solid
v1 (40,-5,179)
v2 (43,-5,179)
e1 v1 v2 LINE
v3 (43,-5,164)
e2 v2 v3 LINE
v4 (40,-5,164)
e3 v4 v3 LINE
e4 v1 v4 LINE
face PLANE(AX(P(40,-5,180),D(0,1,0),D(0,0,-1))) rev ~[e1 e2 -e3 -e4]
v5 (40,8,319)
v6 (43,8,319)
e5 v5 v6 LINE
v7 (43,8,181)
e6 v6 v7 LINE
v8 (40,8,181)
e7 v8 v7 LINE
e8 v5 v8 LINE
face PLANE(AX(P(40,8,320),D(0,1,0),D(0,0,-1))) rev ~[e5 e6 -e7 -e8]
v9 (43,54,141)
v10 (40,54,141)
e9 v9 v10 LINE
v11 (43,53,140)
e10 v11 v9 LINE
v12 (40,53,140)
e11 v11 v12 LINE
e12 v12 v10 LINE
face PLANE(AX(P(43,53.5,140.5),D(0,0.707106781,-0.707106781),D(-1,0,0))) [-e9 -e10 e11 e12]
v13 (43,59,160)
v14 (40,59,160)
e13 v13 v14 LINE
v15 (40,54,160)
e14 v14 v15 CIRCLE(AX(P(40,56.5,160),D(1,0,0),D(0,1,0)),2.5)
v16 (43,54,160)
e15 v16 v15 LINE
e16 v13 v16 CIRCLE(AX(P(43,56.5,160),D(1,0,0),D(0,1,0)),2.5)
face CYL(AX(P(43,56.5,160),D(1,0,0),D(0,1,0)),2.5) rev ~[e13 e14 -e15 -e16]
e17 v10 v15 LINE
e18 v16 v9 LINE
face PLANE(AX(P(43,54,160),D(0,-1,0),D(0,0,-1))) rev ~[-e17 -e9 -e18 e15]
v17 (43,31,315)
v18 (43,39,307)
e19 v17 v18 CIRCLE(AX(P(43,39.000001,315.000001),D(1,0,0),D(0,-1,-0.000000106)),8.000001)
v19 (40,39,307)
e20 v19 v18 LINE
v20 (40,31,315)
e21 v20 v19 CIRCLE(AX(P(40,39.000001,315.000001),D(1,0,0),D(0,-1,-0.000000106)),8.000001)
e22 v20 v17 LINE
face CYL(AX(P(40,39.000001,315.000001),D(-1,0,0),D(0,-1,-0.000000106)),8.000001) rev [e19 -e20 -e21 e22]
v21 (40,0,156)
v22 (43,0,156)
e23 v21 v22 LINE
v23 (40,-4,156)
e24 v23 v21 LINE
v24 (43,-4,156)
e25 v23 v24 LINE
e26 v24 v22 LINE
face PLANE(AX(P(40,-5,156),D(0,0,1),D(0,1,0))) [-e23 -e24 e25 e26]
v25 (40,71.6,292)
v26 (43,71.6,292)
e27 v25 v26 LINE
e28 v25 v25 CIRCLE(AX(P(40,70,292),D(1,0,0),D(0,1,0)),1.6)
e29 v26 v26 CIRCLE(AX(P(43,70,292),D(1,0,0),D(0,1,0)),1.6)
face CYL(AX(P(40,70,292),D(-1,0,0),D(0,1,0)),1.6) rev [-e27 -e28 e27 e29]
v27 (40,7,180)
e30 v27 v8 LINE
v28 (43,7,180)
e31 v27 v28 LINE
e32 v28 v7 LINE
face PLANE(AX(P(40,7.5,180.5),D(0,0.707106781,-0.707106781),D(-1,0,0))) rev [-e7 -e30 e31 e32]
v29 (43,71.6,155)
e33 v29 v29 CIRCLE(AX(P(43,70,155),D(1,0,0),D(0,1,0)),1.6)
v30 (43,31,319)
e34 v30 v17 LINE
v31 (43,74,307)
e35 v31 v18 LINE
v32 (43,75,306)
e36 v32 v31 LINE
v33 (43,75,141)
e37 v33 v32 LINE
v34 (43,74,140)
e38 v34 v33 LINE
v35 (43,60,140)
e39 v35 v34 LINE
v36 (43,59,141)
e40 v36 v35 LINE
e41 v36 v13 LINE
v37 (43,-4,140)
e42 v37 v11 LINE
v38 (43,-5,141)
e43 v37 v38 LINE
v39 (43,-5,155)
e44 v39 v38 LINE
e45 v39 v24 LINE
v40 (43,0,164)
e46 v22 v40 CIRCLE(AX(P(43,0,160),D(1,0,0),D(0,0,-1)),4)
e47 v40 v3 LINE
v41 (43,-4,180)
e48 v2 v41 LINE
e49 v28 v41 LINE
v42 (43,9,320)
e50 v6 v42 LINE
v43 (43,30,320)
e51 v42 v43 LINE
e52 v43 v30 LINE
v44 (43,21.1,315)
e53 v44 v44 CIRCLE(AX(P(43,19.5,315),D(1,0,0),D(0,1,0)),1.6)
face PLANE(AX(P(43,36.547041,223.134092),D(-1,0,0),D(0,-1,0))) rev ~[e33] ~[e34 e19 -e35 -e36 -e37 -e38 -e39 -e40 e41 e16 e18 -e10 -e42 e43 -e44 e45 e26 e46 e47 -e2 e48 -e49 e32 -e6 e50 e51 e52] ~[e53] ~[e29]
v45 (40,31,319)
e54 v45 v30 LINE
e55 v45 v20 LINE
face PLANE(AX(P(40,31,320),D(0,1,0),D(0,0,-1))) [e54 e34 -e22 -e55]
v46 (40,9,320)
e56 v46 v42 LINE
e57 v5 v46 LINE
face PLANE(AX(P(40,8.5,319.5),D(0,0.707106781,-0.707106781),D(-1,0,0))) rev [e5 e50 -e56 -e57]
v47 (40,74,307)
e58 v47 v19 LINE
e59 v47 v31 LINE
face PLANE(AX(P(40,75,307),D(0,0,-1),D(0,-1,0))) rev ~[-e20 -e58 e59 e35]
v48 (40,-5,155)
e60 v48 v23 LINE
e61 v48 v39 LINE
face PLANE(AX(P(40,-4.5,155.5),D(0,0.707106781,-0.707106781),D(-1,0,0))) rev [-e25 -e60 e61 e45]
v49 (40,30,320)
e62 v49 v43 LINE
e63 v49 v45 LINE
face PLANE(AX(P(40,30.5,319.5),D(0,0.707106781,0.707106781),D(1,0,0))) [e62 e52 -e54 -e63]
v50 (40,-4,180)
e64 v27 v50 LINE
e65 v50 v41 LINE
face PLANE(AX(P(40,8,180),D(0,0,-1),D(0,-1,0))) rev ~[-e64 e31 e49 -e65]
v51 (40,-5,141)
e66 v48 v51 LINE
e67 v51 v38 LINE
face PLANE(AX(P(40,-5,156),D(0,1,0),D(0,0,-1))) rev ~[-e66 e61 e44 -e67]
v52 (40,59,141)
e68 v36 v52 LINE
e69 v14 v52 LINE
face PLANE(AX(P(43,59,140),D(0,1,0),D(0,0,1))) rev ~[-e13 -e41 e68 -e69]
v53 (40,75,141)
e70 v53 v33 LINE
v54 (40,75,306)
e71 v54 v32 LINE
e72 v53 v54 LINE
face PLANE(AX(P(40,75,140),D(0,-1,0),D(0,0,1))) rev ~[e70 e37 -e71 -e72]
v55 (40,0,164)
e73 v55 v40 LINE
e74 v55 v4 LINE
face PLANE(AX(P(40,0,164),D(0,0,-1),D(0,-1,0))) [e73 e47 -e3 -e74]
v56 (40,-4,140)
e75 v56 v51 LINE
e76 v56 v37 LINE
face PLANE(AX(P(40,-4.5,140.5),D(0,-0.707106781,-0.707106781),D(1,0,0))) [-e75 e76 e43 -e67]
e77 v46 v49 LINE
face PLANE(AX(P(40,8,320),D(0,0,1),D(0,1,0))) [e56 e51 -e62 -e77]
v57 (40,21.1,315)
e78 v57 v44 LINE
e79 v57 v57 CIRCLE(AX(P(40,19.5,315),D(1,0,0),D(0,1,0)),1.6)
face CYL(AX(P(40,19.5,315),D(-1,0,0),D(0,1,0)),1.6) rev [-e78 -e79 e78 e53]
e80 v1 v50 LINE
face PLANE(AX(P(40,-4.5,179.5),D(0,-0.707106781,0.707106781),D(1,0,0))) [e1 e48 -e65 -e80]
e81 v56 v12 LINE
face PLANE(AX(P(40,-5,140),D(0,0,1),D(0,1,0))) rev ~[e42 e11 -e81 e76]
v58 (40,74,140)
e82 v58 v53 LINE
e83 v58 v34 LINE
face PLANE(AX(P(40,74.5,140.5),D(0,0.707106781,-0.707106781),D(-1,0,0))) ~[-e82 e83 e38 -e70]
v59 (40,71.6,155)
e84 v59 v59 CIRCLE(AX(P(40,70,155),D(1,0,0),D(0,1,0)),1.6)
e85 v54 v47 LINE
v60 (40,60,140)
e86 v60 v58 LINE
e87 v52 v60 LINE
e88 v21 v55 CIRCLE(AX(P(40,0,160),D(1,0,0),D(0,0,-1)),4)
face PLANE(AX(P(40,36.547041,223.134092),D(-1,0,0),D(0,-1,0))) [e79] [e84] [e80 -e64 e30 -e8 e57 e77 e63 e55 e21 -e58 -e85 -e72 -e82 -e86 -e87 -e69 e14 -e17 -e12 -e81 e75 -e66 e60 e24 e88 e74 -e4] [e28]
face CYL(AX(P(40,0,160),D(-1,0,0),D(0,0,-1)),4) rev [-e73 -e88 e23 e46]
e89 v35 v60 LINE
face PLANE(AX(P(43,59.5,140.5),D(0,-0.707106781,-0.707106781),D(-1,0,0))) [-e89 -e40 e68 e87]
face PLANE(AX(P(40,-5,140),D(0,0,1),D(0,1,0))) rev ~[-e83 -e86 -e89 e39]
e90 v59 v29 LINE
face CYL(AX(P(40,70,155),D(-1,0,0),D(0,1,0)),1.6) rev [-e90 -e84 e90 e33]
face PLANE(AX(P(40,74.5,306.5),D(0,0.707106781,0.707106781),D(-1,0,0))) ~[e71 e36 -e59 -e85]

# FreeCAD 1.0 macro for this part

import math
import FreeCAD as App
import Part
import Sketcher

V = App.Vector
Q = App.Units.Quantity


def edges_at(feature, points):
    """Names of the edges that pass closest to the given points."""
    edges = feature.Shape.Edges
    near = lambda p: min(range(len(edges)), key=lambda i: edges[i].distToShape(Part.Vertex(*p))[0])
    return sorted({f"Edge{near(p) + 1}" for p in points})

doc = App.newDocument("Part")
body = doc.addObject("PartDesign::Body", "Body")

# Sketch on YZ plane
sketch1 = doc.addObject("Sketcher::SketchObject", "Sketch")
body.addObject(sketch1)
sketch1.AttachmentSupport = (doc.YZ_Plane, [""])
sketch1.MapMode = "FlatFace"
sketch1.AttachmentOffset = App.Placement(V(0, 0, 40), App.Rotation())
sketch1.addGeometry([
    Part.LineSegment(V(31, 320, 0), V(8, 320, 0)),  # 0
    Part.LineSegment(V(8, 320, 0), V(8, 180, 0)),  # 1
    Part.LineSegment(V(8, 180, 0), V(-5, 180, 0)),  # 2
    Part.LineSegment(V(-5, 180, 0), V(-5, 164, 0)),  # 3
    Part.LineSegment(V(-5, 164, 0), V(0, 164, 0)),  # 4
    Part.ArcOfCircle(Part.Circle(V(0, 160, 0), V(0, 0, 1), 4), math.radians(-90), math.radians(90)),  # 5
    Part.LineSegment(V(0, 156, 0), V(-5, 156, 0)),  # 6
    Part.LineSegment(V(-5, 156, 0), V(-5, 140, 0)),  # 7
    Part.LineSegment(V(-5, 140, 0), V(75, 140, 0)),  # 8
    Part.LineSegment(V(75, 140, 0), V(75, 307, 0)),  # 9
    Part.LineSegment(V(75, 307, 0), V(39, 307, 0)),  # 10
    Part.ArcOfCircle(Part.Circle(V(39, 315, 0), V(0, 0, 1), 8), math.radians(-180), math.radians(-90)),  # 11
    Part.LineSegment(V(31, 315, 0), V(31, 320, 0)),  # 12
    Part.Circle(V(70, 155, 0), V(0, 0, 1), 1.6),  # 13
    Part.Circle(V(70, 292, 0), V(0, 0, 1), 1.6),  # 14
    Part.Circle(V(19.5, 315, 0), V(0, 0, 1), 1.6),  # 15
], False)
sketch1.addConstraint([
    Sketcher.Constraint("Coincident", 0, 2, 1, 1),
    Sketcher.Constraint("Coincident", 1, 2, 2, 1),
    Sketcher.Constraint("Coincident", 2, 2, 3, 1),
    Sketcher.Constraint("Coincident", 3, 2, 4, 1),
    Sketcher.Constraint("Tangent", 4, 2, 5, 2),
    Sketcher.Constraint("Tangent", 5, 1, 6, 1),
    Sketcher.Constraint("Coincident", 6, 2, 7, 1),
    Sketcher.Constraint("Coincident", 7, 2, 8, 1),
    Sketcher.Constraint("Coincident", 8, 2, 9, 1),
    Sketcher.Constraint("Coincident", 9, 2, 10, 1),
    Sketcher.Constraint("Tangent", 10, 2, 11, 2),
    Sketcher.Constraint("Tangent", 11, 1, 12, 1),
    Sketcher.Constraint("Coincident", 12, 2, 0, 1),
    Sketcher.Constraint("Horizontal", 0),
    Sketcher.Constraint("Vertical", 1),
    Sketcher.Constraint("Horizontal", 2),
    Sketcher.Constraint("Vertical", 3),
    Sketcher.Constraint("Horizontal", 4),
    Sketcher.Constraint("Horizontal", 6),
    Sketcher.Constraint("Vertical", 7),
    Sketcher.Constraint("Horizontal", 8),
    Sketcher.Constraint("Vertical", 9),
    Sketcher.Constraint("Horizontal", 10),
    Sketcher.Constraint("Vertical", 12),
    Sketcher.Constraint("Equal", 13, 14),
    Sketcher.Constraint("Equal", 14, 15),
    Sketcher.Constraint("PointOnObject", 5, 3, -2),
    Sketcher.Constraint("Horizontal", 11, 3, 15, 3),
    Sketcher.Constraint("Vertical", 13, 3, 14, 3),
    Sketcher.Constraint("Vertical", 3, 2, 6, 2),
    Sketcher.Constraint("Equal", 3, 7),
    Sketcher.Constraint("Equal", 6, 12),
    Sketcher.Constraint("Radius", 5, Q("4 mm")),
    Sketcher.Constraint("Radius", 11, Q("8.000001 mm")),
    Sketcher.Constraint("Diameter", 13, Q("3.2 mm")),
    Sketcher.Constraint("DistanceX", 0, 2, 0, 1, Q("23 mm")),
    Sketcher.Constraint("DistanceX", 2, 2, 2, 1, Q("13 mm")),
    Sketcher.Constraint("DistanceX", 4, 1, 4, 2, Q("5 mm")),
    Sketcher.Constraint("DistanceX", 8, 1, 8, 2, Q("80 mm")),
    Sketcher.Constraint("DistanceY", 1, 2, 1, 1, Q("140 mm")),
    Sketcher.Constraint("DistanceY", 3, 2, 3, 1, Q("16 mm")),
    Sketcher.Constraint("DistanceY", -1, 1, 5, 3, Q("160 mm")),
    Sketcher.Constraint("DistanceX", -1, 1, 13, 3, Q("70 mm")),
    Sketcher.Constraint("DistanceY", -1, 1, 13, 3, Q("155 mm")),
    Sketcher.Constraint("DistanceY", -1, 1, 14, 3, Q("292 mm")),
    Sketcher.Constraint("DistanceX", -1, 1, 15, 3, Q("19.5 mm")),
])
pad1 = doc.addObject("PartDesign::Pad", "Pad")
body.addObject(pad1)
pad1.Profile = sketch1
pad1.Length = 3

# Sketch on YZ plane
sketch2 = doc.addObject("Sketcher::SketchObject", "Sketch001")
body.addObject(sketch2)
sketch2.AttachmentSupport = (doc.YZ_Plane, [""])
sketch2.MapMode = "FlatFace"
sketch2.AttachmentOffset = App.Placement(V(0, 0, 43), App.Rotation())
sketch2.addGeometry([
    Part.ArcOfCircle(Part.Circle(V(56.5, 140, 0), V(0, 0, 1), 2.5), math.radians(180), math.radians(360)),
    Part.LineSegment(V(59, 140, 0), V(59, 160, 0)),
    Part.ArcOfCircle(Part.Circle(V(56.5, 160, 0), V(0, 0, 1), 2.5), math.radians(0), math.radians(180)),
    Part.LineSegment(V(54, 160, 0), V(54, 140, 0)),
], False)
sketch2.addConstraint([
    Sketcher.Constraint("Tangent", 0, 2, 1, 1),
    Sketcher.Constraint("Tangent", 1, 2, 2, 1),
    Sketcher.Constraint("Tangent", 2, 2, 3, 1),
    Sketcher.Constraint("Tangent", 3, 2, 0, 1),
    Sketcher.Constraint("Vertical", 1),
    Sketcher.Constraint("Vertical", 3),
    Sketcher.Constraint("Radius", 0, Q("2.5 mm")),
    Sketcher.Constraint("DistanceY", 1, 1, 1, 2, Q("20 mm")),
    Sketcher.Constraint("DistanceY", -1, 1, 0, 3, Q("140 mm")),
    Sketcher.Constraint("DistanceX", -1, 1, 0, 2, Q("59 mm")),
])
pocket1 = doc.addObject("PartDesign::Pocket", "Pocket")
body.addObject(pocket1)
pocket1.Profile = sketch2
pocket1.Type = "ThroughAll"
doc.recompute()

chamfer = doc.addObject("PartDesign::Chamfer", "Chamfer")
body.addObject(chamfer)
chamfer.Base = (pocket1, edges_at(pocket1, [(41.5, 54, 140), (41.5, 59, 140)]))
chamfer.Size = 1
doc.recompute()

chamfer2 = doc.addObject("PartDesign::Chamfer", "Chamfer001")
body.addObject(chamfer2)
chamfer2.Base = (chamfer, edges_at(chamfer, [
    (41.5, -5, 180),
    (41.5, 8, 180),
    (41.5, -5, 140),
    (41.5, -5, 156),
    (41.5, 75, 140),
    (41.5, 75, 307),
    (41.5, 31, 320),
    (41.5, 8, 320),
]))
chamfer2.Size = 1

doc.recompute()
